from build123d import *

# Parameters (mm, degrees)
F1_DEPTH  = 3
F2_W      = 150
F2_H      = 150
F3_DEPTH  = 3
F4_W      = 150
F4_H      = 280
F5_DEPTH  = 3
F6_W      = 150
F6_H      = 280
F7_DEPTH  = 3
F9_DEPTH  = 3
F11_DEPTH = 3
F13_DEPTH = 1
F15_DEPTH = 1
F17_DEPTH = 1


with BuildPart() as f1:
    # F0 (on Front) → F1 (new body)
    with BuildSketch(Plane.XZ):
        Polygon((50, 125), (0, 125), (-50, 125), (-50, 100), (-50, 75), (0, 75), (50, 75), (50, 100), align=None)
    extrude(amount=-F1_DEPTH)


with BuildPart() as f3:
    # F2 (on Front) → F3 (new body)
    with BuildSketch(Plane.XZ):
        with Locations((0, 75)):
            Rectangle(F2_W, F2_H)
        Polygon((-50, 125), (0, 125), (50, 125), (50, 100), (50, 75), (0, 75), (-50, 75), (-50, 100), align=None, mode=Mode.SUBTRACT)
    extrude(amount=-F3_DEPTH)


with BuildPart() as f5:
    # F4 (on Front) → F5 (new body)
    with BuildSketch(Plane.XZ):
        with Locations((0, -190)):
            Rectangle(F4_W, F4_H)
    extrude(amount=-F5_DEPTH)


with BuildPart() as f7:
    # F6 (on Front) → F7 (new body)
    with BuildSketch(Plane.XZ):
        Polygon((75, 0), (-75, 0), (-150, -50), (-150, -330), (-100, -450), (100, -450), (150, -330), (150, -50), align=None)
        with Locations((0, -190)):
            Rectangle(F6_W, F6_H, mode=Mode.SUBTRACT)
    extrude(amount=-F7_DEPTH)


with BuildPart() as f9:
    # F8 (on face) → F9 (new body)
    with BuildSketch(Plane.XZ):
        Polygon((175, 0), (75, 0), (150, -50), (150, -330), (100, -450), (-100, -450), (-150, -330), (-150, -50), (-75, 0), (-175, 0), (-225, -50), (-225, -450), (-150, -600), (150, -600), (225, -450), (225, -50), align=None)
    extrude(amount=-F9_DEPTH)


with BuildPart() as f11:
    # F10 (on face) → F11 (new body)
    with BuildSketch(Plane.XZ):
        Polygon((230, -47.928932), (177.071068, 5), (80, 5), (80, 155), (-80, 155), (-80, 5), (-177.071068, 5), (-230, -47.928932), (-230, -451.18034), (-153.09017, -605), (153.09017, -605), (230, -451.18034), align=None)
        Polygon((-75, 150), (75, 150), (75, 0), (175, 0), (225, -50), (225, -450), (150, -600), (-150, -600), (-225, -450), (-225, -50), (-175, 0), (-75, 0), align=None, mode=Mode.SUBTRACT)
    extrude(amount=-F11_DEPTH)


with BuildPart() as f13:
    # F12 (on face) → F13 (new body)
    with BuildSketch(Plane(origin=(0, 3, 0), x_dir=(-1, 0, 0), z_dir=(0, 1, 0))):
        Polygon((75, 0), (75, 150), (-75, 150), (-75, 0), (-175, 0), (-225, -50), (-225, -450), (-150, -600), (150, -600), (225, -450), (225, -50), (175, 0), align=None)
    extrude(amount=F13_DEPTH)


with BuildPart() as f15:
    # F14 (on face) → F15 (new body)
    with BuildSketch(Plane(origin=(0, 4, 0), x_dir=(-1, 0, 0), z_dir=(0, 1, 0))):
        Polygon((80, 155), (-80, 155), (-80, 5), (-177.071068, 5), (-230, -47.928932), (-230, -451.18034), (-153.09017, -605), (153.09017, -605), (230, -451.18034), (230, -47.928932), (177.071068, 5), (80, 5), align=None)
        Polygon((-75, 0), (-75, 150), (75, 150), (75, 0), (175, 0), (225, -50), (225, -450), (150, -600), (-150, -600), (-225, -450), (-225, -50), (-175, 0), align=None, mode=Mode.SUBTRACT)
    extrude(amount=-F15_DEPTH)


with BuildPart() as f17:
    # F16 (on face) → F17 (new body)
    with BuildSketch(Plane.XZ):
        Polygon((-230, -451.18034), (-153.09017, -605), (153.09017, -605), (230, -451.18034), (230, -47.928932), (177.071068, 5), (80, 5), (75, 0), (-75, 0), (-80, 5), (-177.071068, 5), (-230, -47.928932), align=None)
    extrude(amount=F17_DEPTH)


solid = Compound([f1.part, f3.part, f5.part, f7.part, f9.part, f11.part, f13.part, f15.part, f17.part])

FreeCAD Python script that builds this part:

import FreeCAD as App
import Part
import Sketcher

V = App.Vector
Q = App.Units.Quantity

doc = App.newDocument("Part")
body = doc.addObject("PartDesign::Body", "Body")

# Sketch on XZ plane
sketch1 = doc.addObject("Sketcher::SketchObject", "Sketch")
body.addObject(sketch1)
sketch1.AttachmentSupport = (doc.XZ_Plane, [""])
sketch1.MapMode = "FlatFace"
sketch1.addGeometry([
    Part.LineSegment(V(50, 125, 0), V(-50, 125, 0)),
    Part.LineSegment(V(-50, 125, 0), V(-50, 75, 0)),
    Part.LineSegment(V(-50, 75, 0), V(50, 75, 0)),
    Part.LineSegment(V(50, 75, 0), V(50, 125, 0)),
], False)
sketch1.addConstraint([
    Sketcher.Constraint("Coincident", 0, 2, 1, 1),
    Sketcher.Constraint("Coincident", 1, 2, 2, 1),
    Sketcher.Constraint("Coincident", 2, 2, 3, 1),
    Sketcher.Constraint("Coincident", 3, 2, 0, 1),
    Sketcher.Constraint("Horizontal", 0),
    Sketcher.Constraint("Vertical", 1),
    Sketcher.Constraint("Horizontal", 2),
    Sketcher.Constraint("Vertical", 3),
    Sketcher.Constraint("DistanceX", 0, 2, 0, 1, Q("100 mm")),
    Sketcher.Constraint("DistanceY", 1, 2, 1, 1, Q("50 mm")),
    Sketcher.Constraint("DistanceX", 0, 2, -1, 1, Q("50 mm")),
    Sketcher.Constraint("DistanceY", -1, 1, 0, 2, Q("125 mm")),
])
pad1 = doc.addObject("PartDesign::Pad", "Pad")
body.addObject(pad1)
pad1.Profile = sketch1
pad1.Length = 3
pad1.Reversed = True
body2 = doc.addObject("PartDesign::Body", "Body001")

# Sketch on XZ plane
sketch2 = doc.addObject("Sketcher::SketchObject", "Sketch001")
body2.addObject(sketch2)
sketch2.AttachmentSupport = (doc.getObject("XZ_Plane001"), [""])
sketch2.MapMode = "FlatFace"
sketch2.addGeometry([
    Part.LineSegment(V(-75, 150, 0), V(-75, 0, 0)),  # 0
    Part.LineSegment(V(-75, 0, 0), V(75, 0, 0)),  # 1
    Part.LineSegment(V(75, 0, 0), V(75, 150, 0)),  # 2
    Part.LineSegment(V(75, 150, 0), V(-75, 150, 0)),  # 3
    Part.LineSegment(V(-50, 75, 0), V(-50, 125, 0)),  # 4
    Part.LineSegment(V(-50, 125, 0), V(50, 125, 0)),  # 5
    Part.LineSegment(V(50, 125, 0), V(50, 75, 0)),  # 6
    Part.LineSegment(V(50, 75, 0), V(-50, 75, 0)),  # 7
], False)
sketch2.addConstraint([
    Sketcher.Constraint("Coincident", 0, 2, 1, 1),
    Sketcher.Constraint("Coincident", 1, 2, 2, 1),
    Sketcher.Constraint("Coincident", 2, 2, 3, 1),
    Sketcher.Constraint("Coincident", 3, 2, 0, 1),
    Sketcher.Constraint("Coincident", 4, 2, 5, 1),
    Sketcher.Constraint("Coincident", 5, 2, 6, 1),
    Sketcher.Constraint("Coincident", 6, 2, 7, 1),
    Sketcher.Constraint("Coincident", 7, 2, 4, 1),
    Sketcher.Constraint("Vertical", 0),
    Sketcher.Constraint("Horizontal", 1),
    Sketcher.Constraint("Vertical", 2),
    Sketcher.Constraint("Horizontal", 3),
    Sketcher.Constraint("Vertical", 4),
    Sketcher.Constraint("Horizontal", 5),
    Sketcher.Constraint("Vertical", 6),
    Sketcher.Constraint("Horizontal", 7),
    Sketcher.Constraint("Symmetric", 0, 2, 1, 2, -1, 1),
    Sketcher.Constraint("Equal", 3, 0),
    Sketcher.Constraint("DistanceX", 1, 1, 1, 2, Q("150 mm")),
    Sketcher.Constraint("DistanceX", 5, 1, 5, 2, Q("100 mm")),
    Sketcher.Constraint("DistanceY", 4, 1, 4, 2, Q("50 mm")),
    Sketcher.Constraint("DistanceX", 4, 2, -1, 1, Q("50 mm")),
    Sketcher.Constraint("DistanceY", -1, 1, 4, 2, Q("125 mm")),
])
pad2 = doc.addObject("PartDesign::Pad", "Pad001")
body2.addObject(pad2)
pad2.Profile = sketch2
pad2.Length = 3
pad2.Reversed = True
body3 = doc.addObject("PartDesign::Body", "Body002")

# Sketch on XZ plane
sketch3 = doc.addObject("Sketcher::SketchObject", "Sketch002")
body3.addObject(sketch3)
sketch3.AttachmentSupport = (doc.getObject("XZ_Plane002"), [""])
sketch3.MapMode = "FlatFace"
sketch3.addGeometry([
    Part.LineSegment(V(-75, -50, 0), V(-75, -330, 0)),
    Part.LineSegment(V(-75, -330, 0), V(75, -330, 0)),
    Part.LineSegment(V(75, -330, 0), V(75, -50, 0)),
    Part.LineSegment(V(75, -50, 0), V(-75, -50, 0)),
], False)
sketch3.addConstraint([
    Sketcher.Constraint("Coincident", 0, 2, 1, 1),
    Sketcher.Constraint("Coincident", 1, 2, 2, 1),
    Sketcher.Constraint("Coincident", 2, 2, 3, 1),
    Sketcher.Constraint("Coincident", 3, 2, 0, 1),
    Sketcher.Constraint("Vertical", 0),
    Sketcher.Constraint("Horizontal", 1),
    Sketcher.Constraint("Vertical", 2),
    Sketcher.Constraint("Horizontal", 3),
    Sketcher.Constraint("DistanceX", 1, 1, 1, 2, Q("150 mm")),
    Sketcher.Constraint("DistanceY", 0, 2, 0, 1, Q("280 mm")),
    Sketcher.Constraint("DistanceX", 0, 2, -1, 1, Q("75 mm")),
    Sketcher.Constraint("DistanceY", 0, 2, -1, 1, Q("330 mm")),
])
pad3 = doc.addObject("PartDesign::Pad", "Pad002")
body3.addObject(pad3)
pad3.Profile = sketch3
pad3.Length = 3
pad3.Reversed = True
body4 = doc.addObject("PartDesign::Body", "Body003")

# Sketch on XZ plane
sketch4 = doc.addObject("Sketcher::SketchObject", "Sketch003")
body4.addObject(sketch4)
sketch4.AttachmentSupport = (doc.getObject("XZ_Plane003"), [""])
sketch4.MapMode = "FlatFace"
sketch4.addGeometry([
    Part.LineSegment(V(75, 0, 0), V(-75, 0, 0)),  # 0
    Part.LineSegment(V(-75, 0, 0), V(-150, -50, 0)),  # 1
    Part.LineSegment(V(-150, -50, 0), V(-150, -330, 0)),  # 2
    Part.LineSegment(V(-150, -330, 0), V(-100, -450, 0)),  # 3
    Part.LineSegment(V(-100, -450, 0), V(100, -450, 0)),  # 4
    Part.LineSegment(V(100, -450, 0), V(150, -330, 0)),  # 5
    Part.LineSegment(V(150, -330, 0), V(150, -50, 0)),  # 6
    Part.LineSegment(V(150, -50, 0), V(75, 0, 0)),  # 7
    Part.LineSegment(V(75, -330, 0), V(-75, -330, 0)),  # 8
    Part.LineSegment(V(-75, -330, 0), V(-75, -50, 0)),  # 9
    Part.LineSegment(V(-75, -50, 0), V(75, -50, 0)),  # 10
    Part.LineSegment(V(75, -50, 0), V(75, -330, 0)),  # 11
], False)
sketch4.addConstraint([
    Sketcher.Constraint("Coincident", 0, 2, 1, 1),
    Sketcher.Constraint("Coincident", 1, 2, 2, 1),
    Sketcher.Constraint("Coincident", 2, 2, 3, 1),
    Sketcher.Constraint("Coincident", 3, 2, 4, 1),
    Sketcher.Constraint("Coincident", 4, 2, 5, 1),
    Sketcher.Constraint("Coincident", 5, 2, 6, 1),
    Sketcher.Constraint("Coincident", 6, 2, 7, 1),
    Sketcher.Constraint("Coincident", 7, 2, 0, 1),
    Sketcher.Constraint("Coincident", 8, 2, 9, 1),
    Sketcher.Constraint("Coincident", 9, 2, 10, 1),
    Sketcher.Constraint("Coincident", 10, 2, 11, 1),
    Sketcher.Constraint("Coincident", 11, 2, 8, 1),
    Sketcher.Constraint("Horizontal", 0),
    Sketcher.Constraint("Vertical", 2),
    Sketcher.Constraint("Horizontal", 4),
    Sketcher.Constraint("Vertical", 6),
    Sketcher.Constraint("Horizontal", 8),
    Sketcher.Constraint("Vertical", 9),
    Sketcher.Constraint("Horizontal", 10),
    Sketcher.Constraint("Vertical", 11),
    Sketcher.Constraint("Symmetric", 0, 2, 7, 2, -1, 1),
    Sketcher.Constraint("Symmetric", 2, 2, 5, 2, -2),
    Sketcher.Constraint("Horizontal", 1, 2, 6, 2),
    Sketcher.Constraint("Horizontal", 5, 2, 8, 2),
    Sketcher.Constraint("Horizontal", 6, 2, 9, 2),
    Sketcher.Constraint("Vertical", 0, 2, 8, 2),
    Sketcher.Constraint("Vertical", 7, 2, 10, 2),
    Sketcher.Constraint("Equal", 3, 5),
    Sketcher.Constraint("DistanceX", 0, 2, 0, 1, Q("150 mm")),
    Sketcher.Constraint("DistanceX", 4, 1, 4, 2, Q("200 mm")),
    Sketcher.Constraint("DistanceY", 2, 2, 2, 1, Q("280 mm")),
    Sketcher.Constraint("Distance", 3, Q("130 mm")),
    Sketcher.Constraint("DistanceX", 1, 2, -1, 1, Q("150 mm")),
    Sketcher.Constraint("DistanceY", 1, 2, -1, 1, Q("50 mm")),
])
pad4 = doc.addObject("PartDesign::Pad", "Pad003")
body4.addObject(pad4)
pad4.Profile = sketch4
pad4.Length = 3
pad4.Reversed = True
body5 = doc.addObject("PartDesign::Body", "Body004")

# Sketch on XZ plane
sketch5 = doc.addObject("Sketcher::SketchObject", "Sketch004")
body5.addObject(sketch5)
sketch5.AttachmentSupport = (doc.getObject("XZ_Plane004"), [""])
sketch5.MapMode = "FlatFace"
sketch5.addGeometry([
    Part.LineSegment(V(175, 0, 0), V(75, 0, 0)),  # 0
    Part.LineSegment(V(75, 0, 0), V(150, -50, 0)),  # 1
    Part.LineSegment(V(150, -50, 0), V(150, -330, 0)),  # 2
    Part.LineSegment(V(150, -330, 0), V(100, -450, 0)),  # 3
    Part.LineSegment(V(100, -450, 0), V(-100, -450, 0)),  # 4
    Part.LineSegment(V(-100, -450, 0), V(-150, -330, 0)),  # 5
    Part.LineSegment(V(-150, -330, 0), V(-150, -50, 0)),  # 6
    Part.LineSegment(V(-150, -50, 0), V(-75, 0, 0)),  # 7
    Part.LineSegment(V(-75, 0, 0), V(-175, 0, 0)),  # 8
    Part.LineSegment(V(-175, 0, 0), V(-225, -50, 0)),  # 9
    Part.LineSegment(V(-225, -50, 0), V(-225, -450, 0)),  # 10
    Part.LineSegment(V(-225, -450, 0), V(-150, -600, 0)),  # 11
    Part.LineSegment(V(-150, -600, 0), V(150, -600, 0)),  # 12
    Part.LineSegment(V(150, -600, 0), V(225, -450, 0)),  # 13
    Part.LineSegment(V(225, -450, 0), V(225, -50, 0)),  # 14
    Part.LineSegment(V(225, -50, 0), V(175, 0, 0)),  # 15
], False)
sketch5.addConstraint([
    Sketcher.Constraint("Coincident", 0, 2, 1, 1),
    Sketcher.Constraint("Coincident", 1, 2, 2, 1),
    Sketcher.Constraint("Coincident", 2, 2, 3, 1),
    Sketcher.Constraint("Coincident", 3, 2, 4, 1),
    Sketcher.Constraint("Coincident", 4, 2, 5, 1),
    Sketcher.Constraint("Coincident", 5, 2, 6, 1),
    Sketcher.Constraint("Coincident", 6, 2, 7, 1),
    Sketcher.Constraint("Coincident", 7, 2, 8, 1),
    Sketcher.Constraint("Coincident", 8, 2, 9, 1),
    Sketcher.Constraint("Coincident", 9, 2, 10, 1),
    Sketcher.Constraint("Coincident", 10, 2, 11, 1),
    Sketcher.Constraint("Coincident", 11, 2, 12, 1),
    Sketcher.Constraint("Coincident", 12, 2, 13, 1),
    Sketcher.Constraint("Coincident", 13, 2, 14, 1),
    Sketcher.Constraint("Coincident", 14, 2, 15, 1),
    Sketcher.Constraint("Coincident", 15, 2, 0, 1),
    Sketcher.Constraint("Horizontal", 0),
    Sketcher.Constraint("Vertical", 2),
    Sketcher.Constraint("Horizontal", 4),
    Sketcher.Constraint("Vertical", 6),
    Sketcher.Constraint("Horizontal", 8),
    Sketcher.Constraint("Vertical", 10),
    Sketcher.Constraint("Horizontal", 12),
    Sketcher.Constraint("Vertical", 14),
    Sketcher.Constraint("Symmetric", 0, 2, 7, 2, -1, 1),
    Sketcher.Constraint("Symmetric", 2, 2, 5, 2, -2),
    Sketcher.Constraint("Symmetric", 10, 2, 13, 2, -2),
    Sketcher.Constraint("Symmetric", 8, 2, 15, 2, -2),
    Sketcher.Constraint("Perpendicular", 9, 15),
    Sketcher.Constraint("Horizontal", 1, 2, 6, 2),
    Sketcher.Constraint("Horizontal", 6, 2, 9, 2),
    Sketcher.Constraint("Horizontal", 4, 2, 10, 2),
    Sketcher.Constraint("Horizontal", 9, 2, 14, 2),
    Sketcher.Constraint("Vertical", 6, 2, 11, 2),
    Sketcher.Constraint("Vertical", 2, 2, 12, 2),
    Sketcher.Constraint("Equal", 3, 5),
    Sketcher.Constraint("DistanceX", 0, 2, 0, 1, Q("100 mm")),
    Sketcher.Constraint("DistanceX", 4, 2, 4, 1, Q("200 mm")),
    Sketcher.Constraint("DistanceX", 12, 1, 12, 2, Q("300 mm")),
    Sketcher.Constraint("DistanceY", 2, 2, 2, 1, Q("280 mm")),
    Sketcher.Constraint("DistanceY", 10, 2, 10, 1, Q("400 mm")),
    Sketcher.Constraint("DistanceX", -1, 1, 0, 2, Q("75 mm")),
    Sketcher.Constraint("DistanceY", 1, 2, -1, 1, Q("50 mm")),
    Sketcher.Constraint("DistanceY", 11, 2, -1, 1, Q("600 mm")),
])
pad5 = doc.addObject("PartDesign::Pad", "Pad004")
body5.addObject(pad5)
pad5.Profile = sketch5
pad5.Length = 3
pad5.Reversed = True
body6 = doc.addObject("PartDesign::Body", "Body005")

# Sketch on XZ plane
sketch6 = doc.addObject("Sketcher::SketchObject", "Sketch005")
body6.addObject(sketch6)
sketch6.AttachmentSupport = (doc.getObject("XZ_Plane005"), [""])
sketch6.MapMode = "FlatFace"
sketch6.addGeometry([
    Part.LineSegment(V(230, -48, 0), V(177, 5, 0)),  # 0
    Part.LineSegment(V(177, 5, 0), V(80, 5, 0)),  # 1
    Part.LineSegment(V(80, 5, 0), V(80, 155, 0)),  # 2
    Part.LineSegment(V(80, 155, 0), V(-80, 155, 0)),  # 3
    Part.LineSegment(V(-80, 155, 0), V(-80, 5, 0)),  # 4
    Part.LineSegment(V(-80, 5, 0), V(-177, 5, 0)),  # 5
    Part.LineSegment(V(-177, 5, 0), V(-230, -48, 0)),  # 6
    Part.LineSegment(V(-230, -48, 0), V(-230, -451, 0)),  # 7
    Part.LineSegment(V(-230, -451, 0), V(-153, -605, 0)),  # 8
    Part.LineSegment(V(-153, -605, 0), V(153, -605, 0)),  # 9
    Part.LineSegment(V(153, -605, 0), V(230, -451, 0)),  # 10
    Part.LineSegment(V(230, -451, 0), V(230, -48, 0)),  # 11
    Part.LineSegment(V(-75, 0, 0), V(-75, 150, 0)),  # 12
    Part.LineSegment(V(-75, 150, 0), V(75, 150, 0)),  # 13
    Part.LineSegment(V(75, 150, 0), V(75, 0, 0)),  # 14
    Part.LineSegment(V(75, 0, 0), V(175, 0, 0)),  # 15
    Part.LineSegment(V(175, 0, 0), V(225, -50, 0)),  # 16
    Part.LineSegment(V(225, -50, 0), V(225, -450, 0)),  # 17
    Part.LineSegment(V(225, -450, 0), V(150, -600, 0)),  # 18
    Part.LineSegment(V(150, -600, 0), V(-150, -600, 0)),  # 19
    Part.LineSegment(V(-150, -600, 0), V(-225, -450, 0)),  # 20
    Part.LineSegment(V(-225, -450, 0), V(-225, -50, 0)),  # 21
    Part.LineSegment(V(-225, -50, 0), V(-175, 0, 0)),  # 22
    Part.LineSegment(V(-175, 0, 0), V(-75, 0, 0)),  # 23
], False)
sketch6.addConstraint([
    Sketcher.Constraint("Coincident", 0, 2, 1, 1),
    Sketcher.Constraint("Coincident", 1, 2, 2, 1),
    Sketcher.Constraint("Coincident", 2, 2, 3, 1),
    Sketcher.Constraint("Coincident", 3, 2, 4, 1),
    Sketcher.Constraint("Coincident", 4, 2, 5, 1),
    Sketcher.Constraint("Coincident", 5, 2, 6, 1),
    Sketcher.Constraint("Coincident", 6, 2, 7, 1),
    Sketcher.Constraint("Coincident", 7, 2, 8, 1),
    Sketcher.Constraint("Coincident", 8, 2, 9, 1),
    Sketcher.Constraint("Coincident", 9, 2, 10, 1),
    Sketcher.Constraint("Coincident", 10, 2, 11, 1),
    Sketcher.Constraint("Coincident", 11, 2, 0, 1),
    Sketcher.Constraint("Coincident", 12, 2, 13, 1),
    Sketcher.Constraint("Coincident", 13, 2, 14, 1),
    Sketcher.Constraint("Coincident", 14, 2, 15, 1),
    Sketcher.Constraint("Coincident", 15, 2, 16, 1),
    Sketcher.Constraint("Coincident", 16, 2, 17, 1),
    Sketcher.Constraint("Coincident", 17, 2, 18, 1),
    Sketcher.Constraint("Coincident", 18, 2, 19, 1),
    Sketcher.Constraint("Coincident", 19, 2, 20, 1),
    Sketcher.Constraint("Coincident", 20, 2, 21, 1),
    Sketcher.Constraint("Coincident", 21, 2, 22, 1),
    Sketcher.Constraint("Coincident", 22, 2, 23, 1),
    Sketcher.Constraint("Coincident", 23, 2, 12, 1),
    Sketcher.Constraint("Horizontal", 1),
    Sketcher.Constraint("Vertical", 2),
    Sketcher.Constraint("Horizontal", 3),
    Sketcher.Constraint("Vertical", 4),
    Sketcher.Constraint("Horizontal", 5),
    Sketcher.Constraint("Vertical", 7),
    Sketcher.Constraint("Horizontal", 9),
    Sketcher.Constraint("Vertical", 11),
    Sketcher.Constraint("Vertical", 12),
    Sketcher.Constraint("Horizontal", 13),
    Sketcher.Constraint("Vertical", 14),
    Sketcher.Constraint("Horizontal", 15),
    Sketcher.Constraint("Vertical", 17),
    Sketcher.Constraint("Horizontal", 19),
    Sketcher.Constraint("Vertical", 21),
    Sketcher.Constraint("Horizontal", 23),
    Sketcher.Constraint("Symmetric", 15, 2, 22, 2, -1, 1),
    Sketcher.Constraint("Symmetric", 1, 2, 4, 2, -2),
    Sketcher.Constraint("Symmetric", 7, 2, 10, 2, -2),
    Sketcher.Constraint("Symmetric", 17, 2, 20, 2, -2),
    Sketcher.Constraint("Symmetric", 14, 2, 23, 2, -2),
    Sketcher.Constraint("Perpendicular", 0, 6),
    Sketcher.Constraint("Perpendicular", 6, 16),
    Sketcher.Constraint("Parallel", 10, 18),
    Sketcher.Constraint("Parallel", 8, 20),
    Sketcher.Constraint("Perpendicular", 16, 22),
    Sketcher.Constraint("Horizontal", 6, 2, 11, 2),
    Sketcher.Constraint("Horizontal", 16, 2, 21, 2),
    Sketcher.Constraint("Equal", 13, 2),
    Sketcher.Constraint("Equal", 4, 12),
    Sketcher.Constraint("Equal", 8, 10),
    Sketcher.Constraint("DistanceX", 3, 2, 3, 1, Q("160 mm")),
    Sketcher.Constraint("DistanceX", 13, 1, 13, 2, Q("150 mm")),
    Sketcher.Constraint("DistanceX", 15, 1, 15, 2, Q("100 mm")),
    Sketcher.Constraint("DistanceX", 19, 2, 19, 1, Q("300 mm")),
    Sketcher.Constraint("DistanceY", 17, 2, 17, 1, Q("400 mm")),
    Sketcher.Constraint("DistanceY", -1, 1, 0, 2, Q("5 mm")),
    Sketcher.Constraint("DistanceX", 6, 2, -1, 1, Q("230 mm")),
    Sketcher.Constraint("DistanceY", 8, 2, -1, 1, Q("605 mm")),
    Sketcher.Constraint("DistanceX", -1, 1, 16, 2, Q("225 mm")),
    Sketcher.Constraint("DistanceY", 18, 2, -1, 1, Q("600 mm")),
    Sketcher.Constraint("DistanceX", 9, 1, 9, 2, Q("306.18034 mm")),
    Sketcher.Constraint("DistanceX", 1, 2, 1, 1, Q("97.071068 mm")),
])
pad6 = doc.addObject("PartDesign::Pad", "Pad005")
body6.addObject(pad6)
pad6.Profile = sketch6
pad6.Length = 3
pad6.Reversed = True
body7 = doc.addObject("PartDesign::Body", "Body006")

# Sketch on XZ plane
sketch7 = doc.addObject("Sketcher::SketchObject", "Sketch006")
body7.addObject(sketch7)
sketch7.AttachmentSupport = (doc.getObject("XZ_Plane006"), [""])
sketch7.MapMode = "FlatFace"
sketch7.AttachmentOffset = App.Placement(V(0, 0, -3), App.Rotation())
sketch7.addGeometry([
    Part.LineSegment(V(-75, 0, 0), V(-75, 150, 0)),  # 0
    Part.LineSegment(V(-75, 150, 0), V(75, 150, 0)),  # 1
    Part.LineSegment(V(75, 150, 0), V(75, 0, 0)),  # 2
    Part.LineSegment(V(75, 0, 0), V(175, 0, 0)),  # 3
    Part.LineSegment(V(175, 0, 0), V(225, -50, 0)),  # 4
    Part.LineSegment(V(225, -50, 0), V(225, -450, 0)),  # 5
    Part.LineSegment(V(225, -450, 0), V(150, -600, 0)),  # 6
    Part.LineSegment(V(150, -600, 0), V(-150, -600, 0)),  # 7
    Part.LineSegment(V(-150, -600, 0), V(-225, -450, 0)),  # 8
    Part.LineSegment(V(-225, -450, 0), V(-225, -50, 0)),  # 9
    Part.LineSegment(V(-225, -50, 0), V(-175, 0, 0)),  # 10
    Part.LineSegment(V(-175, 0, 0), V(-75, 0, 0)),  # 11
], False)
sketch7.addConstraint([
    Sketcher.Constraint("Coincident", 0, 2, 1, 1),
    Sketcher.Constraint("Coincident", 1, 2, 2, 1),
    Sketcher.Constraint("Coincident", 2, 2, 3, 1),
    Sketcher.Constraint("Coincident", 3, 2, 4, 1),
    Sketcher.Constraint("Coincident", 4, 2, 5, 1),
    Sketcher.Constraint("Coincident", 5, 2, 6, 1),
    Sketcher.Constraint("Coincident", 6, 2, 7, 1),
    Sketcher.Constraint("Coincident", 7, 2, 8, 1),
    Sketcher.Constraint("Coincident", 8, 2, 9, 1),
    Sketcher.Constraint("Coincident", 9, 2, 10, 1),
    Sketcher.Constraint("Coincident", 10, 2, 11, 1),
    Sketcher.Constraint("Coincident", 11, 2, 0, 1),
    Sketcher.Constraint("Vertical", 0),
    Sketcher.Constraint("Horizontal", 1),
    Sketcher.Constraint("Vertical", 2),
    Sketcher.Constraint("Horizontal", 3),
    Sketcher.Constraint("Vertical", 5),
    Sketcher.Constraint("Horizontal", 7),
    Sketcher.Constraint("Vertical", 9),
    Sketcher.Constraint("Horizontal", 11),
    Sketcher.Constraint("Symmetric", 3, 2, 10, 2, -1, 1),
    Sketcher.Constraint("Symmetric", 5, 2, 8, 2, -2),
    Sketcher.Constraint("Symmetric", 2, 2, 11, 2, -2),
    Sketcher.Constraint("Perpendicular", 4, 10),
    Sketcher.Constraint("Horizontal", 4, 2, 9, 2),
    Sketcher.Constraint("Equal", 1, 0),
    Sketcher.Constraint("Equal", 6, 8),
    Sketcher.Constraint("DistanceX", 1, 1, 1, 2, Q("150 mm")),
    Sketcher.Constraint("DistanceX", 3, 1, 3, 2, Q("100 mm")),
    Sketcher.Constraint("DistanceX", 7, 2, 7, 1, Q("300 mm")),
    Sketcher.Constraint("DistanceY", 5, 2, 5, 1, Q("400 mm")),
    Sketcher.Constraint("DistanceX", -1, 1, 4, 2, Q("225 mm")),
    Sketcher.Constraint("DistanceY", 6, 2, -1, 1, Q("600 mm")),
])
pad7 = doc.addObject("PartDesign::Pad", "Pad006")
body7.addObject(pad7)
pad7.Profile = sketch7
pad7.Length = 1
pad7.Reversed = True
body8 = doc.addObject("PartDesign::Body", "Body007")

# Sketch on XZ plane
sketch8 = doc.addObject("Sketcher::SketchObject", "Sketch007")
body8.addObject(sketch8)
sketch8.AttachmentSupport = (doc.getObject("XZ_Plane007"), [""])
sketch8.MapMode = "FlatFace"
sketch8.AttachmentOffset = App.Placement(V(0, 0, -4), App.Rotation())
sketch8.addGeometry([
    Part.LineSegment(V(-80, 155, 0), V(80, 155, 0)),  # 0
    Part.LineSegment(V(80, 155, 0), V(80, 5, 0)),  # 1
    Part.LineSegment(V(80, 5, 0), V(177, 5, 0)),  # 2
    Part.LineSegment(V(177, 5, 0), V(230, -48, 0)),  # 3
    Part.LineSegment(V(230, -48, 0), V(230, -451, 0)),  # 4
    Part.LineSegment(V(230, -451, 0), V(153, -605, 0)),  # 5
    Part.LineSegment(V(153, -605, 0), V(-153, -605, 0)),  # 6
    Part.LineSegment(V(-153, -605, 0), V(-230, -451, 0)),  # 7
    Part.LineSegment(V(-230, -451, 0), V(-230, -48, 0)),  # 8
    Part.LineSegment(V(-230, -48, 0), V(-177, 5, 0)),  # 9
    Part.LineSegment(V(-177, 5, 0), V(-80, 5, 0)),  # 10
    Part.LineSegment(V(-80, 5, 0), V(-80, 155, 0)),  # 11
    Part.LineSegment(V(175, 0, 0), V(75, 0, 0)),  # 12
    Part.LineSegment(V(75, 0, 0), V(75, 150, 0)),  # 13
    Part.LineSegment(V(75, 150, 0), V(-75, 150, 0)),  # 14
    Part.LineSegment(V(-75, 150, 0), V(-75, 0, 0)),  # 15
    Part.LineSegment(V(-75, 0, 0), V(-175, 0, 0)),  # 16
    Part.LineSegment(V(-175, 0, 0), V(-225, -50, 0)),  # 17
    Part.LineSegment(V(-225, -50, 0), V(-225, -450, 0)),  # 18
    Part.LineSegment(V(-225, -450, 0), V(-150, -600, 0)),  # 19
    Part.LineSegment(V(-150, -600, 0), V(150, -600, 0)),  # 20
    Part.LineSegment(V(150, -600, 0), V(225, -450, 0)),  # 21
    Part.LineSegment(V(225, -450, 0), V(225, -50, 0)),  # 22
    Part.LineSegment(V(225, -50, 0), V(175, 0, 0)),  # 23
], False)
sketch8.addConstraint([
    Sketcher.Constraint("Coincident", 0, 2, 1, 1),
    Sketcher.Constraint("Coincident", 1, 2, 2, 1),
    Sketcher.Constraint("Coincident", 2, 2, 3, 1),
    Sketcher.Constraint("Coincident", 3, 2, 4, 1),
    Sketcher.Constraint("Coincident", 4, 2, 5, 1),
    Sketcher.Constraint("Coincident", 5, 2, 6, 1),
    Sketcher.Constraint("Coincident", 6, 2, 7, 1),
    Sketcher.Constraint("Coincident", 7, 2, 8, 1),
    Sketcher.Constraint("Coincident", 8, 2, 9, 1),
    Sketcher.Constraint("Coincident", 9, 2, 10, 1),
    Sketcher.Constraint("Coincident", 10, 2, 11, 1),
    Sketcher.Constraint("Coincident", 11, 2, 0, 1),
    Sketcher.Constraint("Coincident", 12, 2, 13, 1),
    Sketcher.Constraint("Coincident", 13, 2, 14, 1),
    Sketcher.Constraint("Coincident", 14, 2, 15, 1),
    Sketcher.Constraint("Coincident", 15, 2, 16, 1),
    Sketcher.Constraint("Coincident", 16, 2, 17, 1),
    Sketcher.Constraint("Coincident", 17, 2, 18, 1),
    Sketcher.Constraint("Coincident", 18, 2, 19, 1),
    Sketcher.Constraint("Coincident", 19, 2, 20, 1),
    Sketcher.Constraint("Coincident", 20, 2, 21, 1),
    Sketcher.Constraint("Coincident", 21, 2, 22, 1),
    Sketcher.Constraint("Coincident", 22, 2, 23, 1),
    Sketcher.Constraint("Coincident", 23, 2, 12, 1),
    Sketcher.Constraint("Horizontal", 0),
    Sketcher.Constraint("Vertical", 1),
    Sketcher.Constraint("Horizontal", 2),
    Sketcher.Constraint("Vertical", 4),
    Sketcher.Constraint("Horizontal", 6),
    Sketcher.Constraint("Vertical", 8),
    Sketcher.Constraint("Horizontal", 10),
    Sketcher.Constraint("Vertical", 11),
    Sketcher.Constraint("Horizontal", 12),
    Sketcher.Constraint("Vertical", 13),
    Sketcher.Constraint("Horizontal", 14),
    Sketcher.Constraint("Vertical", 15),
    Sketcher.Constraint("Horizontal", 16),
    Sketcher.Constraint("Vertical", 18),
    Sketcher.Constraint("Horizontal", 20),
    Sketcher.Constraint("Vertical", 22),
    Sketcher.Constraint("Symmetric", 12, 2, 15, 2, -1, 1),
    Sketcher.Constraint("Symmetric", 4, 2, 7, 2, -2),
    Sketcher.Constraint("Symmetric", 2, 2, 9, 2, -2),
    Sketcher.Constraint("Symmetric", 18, 2, 21, 2, -2),
    Sketcher.Constraint("Symmetric", 16, 2, 23, 2, -2),
    Sketcher.Constraint("Perpendicular", 3, 9),
    Sketcher.Constraint("Parallel", 9, 17),
    Sketcher.Constraint("Parallel", 7, 19),
    Sketcher.Constraint("Parallel", 5, 21),
    Sketcher.Constraint("Perpendicular", 17, 23),
    Sketcher.Constraint("Horizontal", 3, 2, 8, 2),
    Sketcher.Constraint("Equal", 2, 10),
    Sketcher.Constraint("Equal", 14, 1),
    Sketcher.Constraint("Equal", 11, 13),
    Sketcher.Constraint("Equal", 5, 7),
    Sketcher.Constraint("DistanceX", 0, 1, 0, 2, Q("160 mm")),
    Sketcher.Constraint("DistanceX", 12, 2, 12, 1, Q("100 mm")),
    Sketcher.Constraint("DistanceX", 14, 2, 14, 1, Q("150 mm")),
    Sketcher.Constraint("DistanceX", 20, 1, 20, 2, Q("300 mm")),
    Sketcher.Constraint("DistanceY", 18, 2, 18, 1, Q("400 mm")),
    Sketcher.Constraint("DistanceY", -1, 1, 0, 2, Q("155 mm")),
    Sketcher.Constraint("DistanceX", -1, 1, 3, 2, Q("230 mm")),
    Sketcher.Constraint("DistanceY", 5, 2, -1, 1, Q("605 mm")),
    Sketcher.Constraint("DistanceX", 17, 2, -1, 1, Q("225 mm")),
    Sketcher.Constraint("DistanceY", 19, 2, -1, 1, Q("600 mm")),
    Sketcher.Constraint("DistanceX", 6, 2, 6, 1, Q("306.18034 mm")),
    Sketcher.Constraint("DistanceX", 2, 1, 2, 2, Q("97.071068 mm")),
])
pad8 = doc.addObject("PartDesign::Pad", "Pad007")
body8.addObject(pad8)
pad8.Profile = sketch8
pad8.Length = 1
body9 = doc.addObject("PartDesign::Body", "Body008")

# Sketch on XZ plane
sketch9 = doc.addObject("Sketcher::SketchObject", "Sketch008")
body9.addObject(sketch9)
sketch9.AttachmentSupport = (doc.getObject("XZ_Plane008"), [""])
sketch9.MapMode = "FlatFace"
sketch9.addGeometry([
    Part.LineSegment(V(-230, -451, 0), V(-153, -605, 0)),  # 0
    Part.LineSegment(V(-153, -605, 0), V(153, -605, 0)),  # 1
    Part.LineSegment(V(153, -605, 0), V(230, -451, 0)),  # 2
    Part.LineSegment(V(230, -451, 0), V(230, -48, 0)),  # 3
    Part.LineSegment(V(230, -48, 0), V(177, 5, 0)),  # 4
    Part.LineSegment(V(177, 5, 0), V(80, 5, 0)),  # 5
    Part.LineSegment(V(80, 5, 0), V(75, 0, 0)),  # 6
    Part.LineSegment(V(75, 0, 0), V(-75, 0, 0)),  # 7
    Part.LineSegment(V(-75, 0, 0), V(-80, 5, 0)),  # 8
    Part.LineSegment(V(-80, 5, 0), V(-177, 5, 0)),  # 9
    Part.LineSegment(V(-177, 5, 0), V(-230, -48, 0)),  # 10
    Part.LineSegment(V(-230, -48, 0), V(-230, -451, 0)),  # 11
], False)
sketch9.addConstraint([
    Sketcher.Constraint("Coincident", 0, 2, 1, 1),
    Sketcher.Constraint("Coincident", 1, 2, 2, 1),
    Sketcher.Constraint("Coincident", 2, 2, 3, 1),
    Sketcher.Constraint("Coincident", 3, 2, 4, 1),
    Sketcher.Constraint("Coincident", 4, 2, 5, 1),
    Sketcher.Constraint("Coincident", 5, 2, 6, 1),
    Sketcher.Constraint("Coincident", 6, 2, 7, 1),
    Sketcher.Constraint("Coincident", 7, 2, 8, 1),
    Sketcher.Constraint("Coincident", 8, 2, 9, 1),
    Sketcher.Constraint("Coincident", 9, 2, 10, 1),
    Sketcher.Constraint("Coincident", 10, 2, 11, 1),
    Sketcher.Constraint("Coincident", 11, 2, 0, 1),
    Sketcher.Constraint("Horizontal", 1),
    Sketcher.Constraint("Vertical", 3),
    Sketcher.Constraint("Horizontal", 5),
    Sketcher.Constraint("Horizontal", 7),
    Sketcher.Constraint("Horizontal", 9),
    Sketcher.Constraint("Vertical", 11),
    Sketcher.Constraint("Symmetric", 6, 2, 7, 2, -1, 1),
    Sketcher.Constraint("Symmetric", 5, 2, 8, 2, -2),
    Sketcher.Constraint("Symmetric", 3, 2, 10, 2, -2),
    Sketcher.Constraint("Perpendicular", 4, 6),
    Sketcher.Constraint("Perpendicular", 6, 8),
    Sketcher.Constraint("Perpendicular", 8, 10),
    Sketcher.Constraint("Horizontal", 2, 2, 11, 2),
    Sketcher.Constraint("Equal", 0, 2),
    Sketcher.Constraint("DistanceX", 7, 2, 7, 1, Q("150 mm")),
    Sketcher.Constraint("DistanceY", 0, 2, -1, 1, Q("605 mm")),
    Sketcher.Constraint("DistanceX", -1, 1, 2, 2, Q("230 mm")),
    Sketcher.Constraint("DistanceY", -1, 1, 4, 2, Q("5 mm")),
    Sketcher.Constraint("DistanceX", 1, 1, 1, 2, Q("306.18034 mm")),
    Sketcher.Constraint("Distance", 0, Q("171.975608 mm")),
    Sketcher.Constraint("DistanceX", 5, 2, 5, 1, Q("97.071068 mm")),
])
pad9 = doc.addObject("PartDesign::Pad", "Pad008")
body9.addObject(pad9)
pad9.Profile = sketch9
pad9.Length = 1

doc.recompute()
